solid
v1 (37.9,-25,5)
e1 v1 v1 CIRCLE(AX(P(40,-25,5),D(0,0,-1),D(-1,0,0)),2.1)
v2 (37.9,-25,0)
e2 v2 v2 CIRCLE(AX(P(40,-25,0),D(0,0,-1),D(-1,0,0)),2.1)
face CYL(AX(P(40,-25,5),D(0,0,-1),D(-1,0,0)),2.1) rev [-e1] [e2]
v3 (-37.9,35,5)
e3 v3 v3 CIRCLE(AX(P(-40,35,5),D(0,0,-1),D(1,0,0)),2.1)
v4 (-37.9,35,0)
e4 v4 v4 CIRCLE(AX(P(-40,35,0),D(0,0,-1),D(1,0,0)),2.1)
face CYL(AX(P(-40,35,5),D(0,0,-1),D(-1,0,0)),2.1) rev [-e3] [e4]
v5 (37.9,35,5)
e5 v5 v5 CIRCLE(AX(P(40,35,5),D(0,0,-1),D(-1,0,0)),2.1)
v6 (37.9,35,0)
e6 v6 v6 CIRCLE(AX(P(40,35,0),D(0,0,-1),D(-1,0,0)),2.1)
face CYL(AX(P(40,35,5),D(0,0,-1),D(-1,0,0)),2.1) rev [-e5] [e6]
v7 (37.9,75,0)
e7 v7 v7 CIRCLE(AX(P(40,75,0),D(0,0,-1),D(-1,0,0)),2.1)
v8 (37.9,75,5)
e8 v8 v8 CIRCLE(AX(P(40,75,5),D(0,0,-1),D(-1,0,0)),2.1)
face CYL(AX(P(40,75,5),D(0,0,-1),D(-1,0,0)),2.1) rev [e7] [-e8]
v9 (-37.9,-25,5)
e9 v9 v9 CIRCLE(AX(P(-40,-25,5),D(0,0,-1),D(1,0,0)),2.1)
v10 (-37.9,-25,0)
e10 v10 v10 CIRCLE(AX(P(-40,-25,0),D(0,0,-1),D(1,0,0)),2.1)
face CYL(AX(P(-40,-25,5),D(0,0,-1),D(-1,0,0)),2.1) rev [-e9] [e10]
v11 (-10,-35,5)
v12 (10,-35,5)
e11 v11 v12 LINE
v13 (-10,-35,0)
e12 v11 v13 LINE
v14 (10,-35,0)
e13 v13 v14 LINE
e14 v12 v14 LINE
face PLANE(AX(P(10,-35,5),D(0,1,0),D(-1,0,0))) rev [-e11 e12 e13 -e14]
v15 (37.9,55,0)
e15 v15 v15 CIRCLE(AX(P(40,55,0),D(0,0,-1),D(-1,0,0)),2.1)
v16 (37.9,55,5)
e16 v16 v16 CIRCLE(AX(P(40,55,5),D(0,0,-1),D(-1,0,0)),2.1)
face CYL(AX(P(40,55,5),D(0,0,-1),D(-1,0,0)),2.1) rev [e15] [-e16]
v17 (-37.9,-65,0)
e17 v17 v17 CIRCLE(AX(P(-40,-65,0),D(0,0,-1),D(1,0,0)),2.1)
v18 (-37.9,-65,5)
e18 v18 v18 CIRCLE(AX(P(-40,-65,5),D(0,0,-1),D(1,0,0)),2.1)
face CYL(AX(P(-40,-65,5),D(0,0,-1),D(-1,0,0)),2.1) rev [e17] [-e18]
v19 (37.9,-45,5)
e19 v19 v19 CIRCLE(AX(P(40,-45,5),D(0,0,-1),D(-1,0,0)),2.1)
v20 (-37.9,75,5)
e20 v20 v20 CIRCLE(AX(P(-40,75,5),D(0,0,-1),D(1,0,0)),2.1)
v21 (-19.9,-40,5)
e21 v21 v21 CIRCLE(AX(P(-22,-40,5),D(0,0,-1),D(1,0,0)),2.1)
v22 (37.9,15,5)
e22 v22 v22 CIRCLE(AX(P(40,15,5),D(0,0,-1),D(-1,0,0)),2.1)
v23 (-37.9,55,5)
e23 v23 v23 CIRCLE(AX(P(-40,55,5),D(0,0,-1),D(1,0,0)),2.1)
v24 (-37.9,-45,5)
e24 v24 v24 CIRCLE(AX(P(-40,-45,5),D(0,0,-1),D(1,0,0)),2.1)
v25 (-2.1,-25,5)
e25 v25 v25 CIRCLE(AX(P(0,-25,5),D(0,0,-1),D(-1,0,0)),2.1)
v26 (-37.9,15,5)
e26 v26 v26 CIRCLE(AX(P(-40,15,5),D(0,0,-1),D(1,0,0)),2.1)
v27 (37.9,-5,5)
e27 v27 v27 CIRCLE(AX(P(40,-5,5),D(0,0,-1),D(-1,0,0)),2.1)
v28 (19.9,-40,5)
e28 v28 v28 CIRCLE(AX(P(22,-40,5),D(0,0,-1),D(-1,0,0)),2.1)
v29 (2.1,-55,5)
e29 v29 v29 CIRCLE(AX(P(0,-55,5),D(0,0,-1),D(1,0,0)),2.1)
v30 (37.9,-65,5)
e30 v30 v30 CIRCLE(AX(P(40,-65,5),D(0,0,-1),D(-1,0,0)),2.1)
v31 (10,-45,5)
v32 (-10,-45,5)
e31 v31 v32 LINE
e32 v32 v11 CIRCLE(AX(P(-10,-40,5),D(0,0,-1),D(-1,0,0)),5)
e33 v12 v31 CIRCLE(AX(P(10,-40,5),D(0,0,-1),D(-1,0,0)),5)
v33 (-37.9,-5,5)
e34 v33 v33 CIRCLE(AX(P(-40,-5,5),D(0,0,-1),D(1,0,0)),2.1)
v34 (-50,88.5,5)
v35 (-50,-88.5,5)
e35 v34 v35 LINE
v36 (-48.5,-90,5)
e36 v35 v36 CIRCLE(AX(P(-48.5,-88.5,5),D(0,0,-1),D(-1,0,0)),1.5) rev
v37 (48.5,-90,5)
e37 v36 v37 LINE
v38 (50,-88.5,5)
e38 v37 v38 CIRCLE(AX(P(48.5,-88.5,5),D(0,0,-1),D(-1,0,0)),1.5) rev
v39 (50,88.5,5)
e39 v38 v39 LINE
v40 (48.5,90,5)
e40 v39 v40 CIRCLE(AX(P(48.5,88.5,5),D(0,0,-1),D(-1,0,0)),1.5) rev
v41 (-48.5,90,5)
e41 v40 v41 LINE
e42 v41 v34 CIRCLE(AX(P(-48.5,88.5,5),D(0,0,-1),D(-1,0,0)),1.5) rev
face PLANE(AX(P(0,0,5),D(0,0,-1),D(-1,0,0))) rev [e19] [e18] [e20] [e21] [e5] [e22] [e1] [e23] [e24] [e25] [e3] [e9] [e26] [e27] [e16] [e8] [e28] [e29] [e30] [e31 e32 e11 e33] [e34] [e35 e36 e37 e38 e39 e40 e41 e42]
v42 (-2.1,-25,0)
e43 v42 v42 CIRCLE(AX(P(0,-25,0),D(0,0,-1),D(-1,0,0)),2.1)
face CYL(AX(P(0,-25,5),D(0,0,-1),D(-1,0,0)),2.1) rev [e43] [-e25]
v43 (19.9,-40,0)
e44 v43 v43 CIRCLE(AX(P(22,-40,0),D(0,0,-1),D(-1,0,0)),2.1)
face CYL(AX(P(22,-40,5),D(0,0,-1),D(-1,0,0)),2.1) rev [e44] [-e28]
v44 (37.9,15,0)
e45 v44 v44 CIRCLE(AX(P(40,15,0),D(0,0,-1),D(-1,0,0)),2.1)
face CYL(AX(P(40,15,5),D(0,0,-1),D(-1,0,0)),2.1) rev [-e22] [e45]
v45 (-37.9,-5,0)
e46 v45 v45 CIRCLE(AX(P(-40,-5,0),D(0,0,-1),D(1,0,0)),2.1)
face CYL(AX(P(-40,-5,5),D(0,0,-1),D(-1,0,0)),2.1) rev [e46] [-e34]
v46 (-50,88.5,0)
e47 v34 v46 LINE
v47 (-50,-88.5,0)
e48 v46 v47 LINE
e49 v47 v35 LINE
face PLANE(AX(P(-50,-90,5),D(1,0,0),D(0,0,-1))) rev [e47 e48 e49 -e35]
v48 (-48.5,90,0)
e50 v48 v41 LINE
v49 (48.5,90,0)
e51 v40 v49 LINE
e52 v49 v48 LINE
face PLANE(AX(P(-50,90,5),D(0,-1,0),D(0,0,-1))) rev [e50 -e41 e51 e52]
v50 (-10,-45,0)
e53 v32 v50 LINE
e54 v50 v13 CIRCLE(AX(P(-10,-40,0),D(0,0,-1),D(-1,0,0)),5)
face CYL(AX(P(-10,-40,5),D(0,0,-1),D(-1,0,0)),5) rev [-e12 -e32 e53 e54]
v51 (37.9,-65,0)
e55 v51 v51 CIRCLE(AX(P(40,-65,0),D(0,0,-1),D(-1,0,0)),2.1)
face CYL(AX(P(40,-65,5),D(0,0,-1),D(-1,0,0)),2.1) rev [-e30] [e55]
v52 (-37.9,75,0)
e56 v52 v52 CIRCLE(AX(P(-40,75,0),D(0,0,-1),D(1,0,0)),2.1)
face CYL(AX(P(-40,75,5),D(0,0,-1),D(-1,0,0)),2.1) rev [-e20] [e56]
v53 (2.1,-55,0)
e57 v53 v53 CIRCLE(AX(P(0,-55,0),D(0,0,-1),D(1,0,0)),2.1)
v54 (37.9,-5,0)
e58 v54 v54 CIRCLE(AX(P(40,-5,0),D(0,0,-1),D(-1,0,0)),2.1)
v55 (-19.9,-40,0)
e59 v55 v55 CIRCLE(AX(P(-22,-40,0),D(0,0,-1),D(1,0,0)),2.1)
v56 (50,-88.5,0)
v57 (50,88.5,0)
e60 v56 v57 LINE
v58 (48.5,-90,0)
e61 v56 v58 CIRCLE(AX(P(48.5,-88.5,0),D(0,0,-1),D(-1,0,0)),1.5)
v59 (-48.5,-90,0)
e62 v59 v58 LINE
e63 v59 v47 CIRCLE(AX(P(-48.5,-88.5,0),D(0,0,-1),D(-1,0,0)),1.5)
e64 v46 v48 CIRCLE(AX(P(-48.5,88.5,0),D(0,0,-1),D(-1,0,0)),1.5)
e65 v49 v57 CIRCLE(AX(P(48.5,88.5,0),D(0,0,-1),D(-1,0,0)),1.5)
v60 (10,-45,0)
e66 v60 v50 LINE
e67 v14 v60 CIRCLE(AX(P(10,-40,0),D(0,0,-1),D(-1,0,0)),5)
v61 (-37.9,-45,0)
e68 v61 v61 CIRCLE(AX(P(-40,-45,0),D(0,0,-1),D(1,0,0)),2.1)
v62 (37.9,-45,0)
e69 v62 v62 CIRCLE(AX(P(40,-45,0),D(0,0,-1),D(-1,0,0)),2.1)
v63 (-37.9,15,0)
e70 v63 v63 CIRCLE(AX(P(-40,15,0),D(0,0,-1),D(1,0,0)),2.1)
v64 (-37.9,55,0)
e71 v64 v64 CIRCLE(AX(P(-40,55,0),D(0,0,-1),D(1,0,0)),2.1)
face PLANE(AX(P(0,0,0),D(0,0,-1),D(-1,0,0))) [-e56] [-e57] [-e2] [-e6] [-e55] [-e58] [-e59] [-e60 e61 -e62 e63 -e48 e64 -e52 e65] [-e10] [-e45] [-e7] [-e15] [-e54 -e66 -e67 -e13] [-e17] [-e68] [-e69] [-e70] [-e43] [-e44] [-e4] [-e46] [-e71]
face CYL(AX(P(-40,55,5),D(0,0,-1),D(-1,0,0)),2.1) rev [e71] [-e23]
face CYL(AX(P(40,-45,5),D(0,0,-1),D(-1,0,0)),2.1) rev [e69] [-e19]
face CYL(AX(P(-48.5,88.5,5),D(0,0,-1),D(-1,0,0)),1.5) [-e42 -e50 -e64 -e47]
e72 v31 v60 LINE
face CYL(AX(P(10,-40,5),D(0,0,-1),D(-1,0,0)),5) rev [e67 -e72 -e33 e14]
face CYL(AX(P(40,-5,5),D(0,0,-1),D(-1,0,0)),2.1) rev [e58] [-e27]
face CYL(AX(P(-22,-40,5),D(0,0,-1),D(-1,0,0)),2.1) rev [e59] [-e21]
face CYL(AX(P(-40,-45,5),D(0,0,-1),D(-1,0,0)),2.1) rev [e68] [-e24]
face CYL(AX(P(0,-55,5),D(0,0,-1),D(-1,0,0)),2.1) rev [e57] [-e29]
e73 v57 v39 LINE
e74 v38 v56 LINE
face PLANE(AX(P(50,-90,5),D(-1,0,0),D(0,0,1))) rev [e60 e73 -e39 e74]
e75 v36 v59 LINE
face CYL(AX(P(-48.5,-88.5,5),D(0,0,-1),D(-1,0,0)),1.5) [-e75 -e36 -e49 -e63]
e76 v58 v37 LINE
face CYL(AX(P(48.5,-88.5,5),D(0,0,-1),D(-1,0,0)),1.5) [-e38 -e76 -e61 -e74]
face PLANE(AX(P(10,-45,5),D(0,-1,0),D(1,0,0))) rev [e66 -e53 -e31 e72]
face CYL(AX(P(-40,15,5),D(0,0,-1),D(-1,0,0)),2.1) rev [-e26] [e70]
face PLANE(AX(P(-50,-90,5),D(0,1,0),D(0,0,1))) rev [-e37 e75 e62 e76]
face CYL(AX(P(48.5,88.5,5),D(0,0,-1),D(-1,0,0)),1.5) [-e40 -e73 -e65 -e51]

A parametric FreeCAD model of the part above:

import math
import FreeCAD as App
import Part
import Sketcher
from FreeCAD import Vector


def edges_at(feature, points):
    """Names of the edges that pass closest to the given points."""
    edges = feature.Shape.Edges
    near = lambda p: min(range(len(edges)), key=lambda i: edges[i].distToShape(Part.Vertex(*p))[0])
    return sorted({f"Edge{near(p) + 1}" for p in points})


def add_polygon(sketch, points):
    """Adds a closed chain of lines whose ends are joined by coincident constraints."""
    first, n = sketch.GeometryCount, len(points)
    for a, b in zip(points, points[1:] + points[:1]):
        sketch.addGeometry(Part.LineSegment(App.Vector(*a, 0), App.Vector(*b, 0)), False)
    for i in range(n):
        sketch.addConstraint(Sketcher.Constraint("Coincident", first + i, 2, first + (i + 1) % n, 1))

doc = App.newDocument("Part")
body = doc.addObject("PartDesign::Body", "Body")

# Sketch on XY plane
sketch1 = body.newObject("Sketcher::SketchObject", "Sketch")
sketch1.AttachmentSupport = (doc.getObject("XY_Plane"), [""])
sketch1.MapMode = "FlatFace"
add_polygon(sketch1, [(-50, 90), (-50, -90), (50, -90), (50, 90)])  # lines 0-3
sketch1.addConstraint([
    Sketcher.Constraint("Vertical", 0),
    Sketcher.Constraint("Horizontal", 1),
    Sketcher.Constraint("Vertical", 2),
    Sketcher.Constraint("Horizontal", 3),
    Sketcher.Constraint("Symmetric", 0, 2, 2, 2, -1, 1),
    Sketcher.Constraint("DistanceX", 1, 1, 1, 2, 100.0),
    Sketcher.Constraint("DistanceY", 0, 2, 0, 1, 180.0),
])
pad1 = body.newObject("PartDesign::Pad", "Pad")
pad1.Profile = sketch1
pad1.Length = 5

# Sketch on XY plane
sketch2 = body.newObject("Sketcher::SketchObject", "Sketch001")
sketch2.AttachmentSupport = (doc.getObject("XY_Plane"), [""])
sketch2.MapMode = "FlatFace"
sketch2.addGeometry([
    Part.Circle(Vector(22, -40, 0), Vector(0, 0, 1), 2.1),  # 0
    Part.Circle(Vector(0, -25, 0), Vector(0, 0, 1), 2.1),  # 1
    Part.Circle(Vector(-22, -40, 0), Vector(0, 0, 1), 2.1),  # 2
    Part.Circle(Vector(0, -55, 0), Vector(0, 0, 1), 2.1),  # 3
    Part.LineSegment(Vector(-10, -35, 0), Vector(10, -35, 0)),  # 4
    Part.ArcOfCircle(Part.Circle(Vector(10, -40, 0), Vector(0, 0, 1), 5), math.radians(-90), math.radians(90)),  # 5
    Part.LineSegment(Vector(10, -45, 0), Vector(-10, -45, 0)),  # 6
    Part.ArcOfCircle(Part.Circle(Vector(-10, -40, 0), Vector(0, 0, 1), 5), math.radians(90), math.radians(270)),  # 7
], False)
sketch2.addConstraint([
    Sketcher.Constraint("Tangent", 4, 2, 5, 2),
    Sketcher.Constraint("Tangent", 5, 1, 6, 1),
    Sketcher.Constraint("Tangent", 6, 2, 7, 2),
    Sketcher.Constraint("Tangent", 7, 1, 4, 1),
    Sketcher.Constraint("Horizontal", 4),
    Sketcher.Constraint("Horizontal", 6),
    Sketcher.Constraint("Equal", 0, 1),
    Sketcher.Constraint("Equal", 1, 2),
    Sketcher.Constraint("Equal", 2, 3),
    Sketcher.Constraint("Symmetric", 0, 3, 2, 3, -2),
    Sketcher.Constraint("PointOnObject", 1, 3, -2),
    Sketcher.Constraint("PointOnObject", 3, 3, -2),
    Sketcher.Constraint("Horizontal", 2, 3, 5, 3),
    Sketcher.Constraint("Radius", 5, 5.0),
    Sketcher.Constraint("Diameter", 0, 4.2),
    Sketcher.Constraint("DistanceX", 4, 1, 4, 2, 20.0),
    Sketcher.Constraint("DistanceX", -1, 1, 0, 3, 22.0),
    Sketcher.Constraint("DistanceY", 0, 3, -1, 1, 40.0),
    Sketcher.Constraint("DistanceY", 1, 3, -1, 1, 25.0),
    Sketcher.Constraint("DistanceY", 3, 3, -1, 1, 55.0),
    Sketcher.Constraint("DistanceX", -1, 1, 5, 3, 10.0),
])
pocket1 = body.newObject("PartDesign::Pocket", "Pocket")
pocket1.Profile = sketch2
pocket1.Type = "ThroughAll"
pocket1.Reversed = True
doc.recompute()

fillet = body.newObject("PartDesign::Fillet", "Fillet")
fillet.Base = (pocket1, edges_at(pocket1, [
    (50, -90, 2.5),
    (-50, -90, 2.5),
    (-50, 90, 2.5),
    (50, 90, 2.5),
]))
fillet.Radius = 1.5

# Sketch on XY plane
sketch3 = body.newObject("Sketcher::SketchObject", "Sketch002")
sketch3.AttachmentSupport = (doc.getObject("XY_Plane"), [""])
sketch3.MapMode = "FlatFace"
sketch3.addGeometry([
    Part.Circle(Vector(40, 75, 0), Vector(0, 0, 1), 2.1),  # 0
    Part.Circle(Vector(40, 55, 0), Vector(0, 0, 1), 2.1),  # 1
    Part.Circle(Vector(40, 35, 0), Vector(0, 0, 1), 2.1),  # 2
    Part.Circle(Vector(40, 15, 0), Vector(0, 0, 1), 2.1),  # 3
    Part.Circle(Vector(40, -5, 0), Vector(0, 0, 1), 2.1),  # 4
    Part.Circle(Vector(-40, -5, 0), Vector(0, 0, 1), 2.1),  # 5
    Part.Circle(Vector(-40, 15, 0), Vector(0, 0, 1), 2.1),  # 6
    Part.Circle(Vector(-40, 35, 0), Vector(0, 0, 1), 2.1),  # 7
    Part.Circle(Vector(-40, 75, 0), Vector(0, 0, 1), 2.1),  # 8
    Part.Circle(Vector(-40, 55, 0), Vector(0, 0, 1), 2.1),  # 9
    Part.Circle(Vector(40, -25, 0), Vector(0, 0, 1), 2.1),  # 10
    Part.Circle(Vector(40, -45, 0), Vector(0, 0, 1), 2.1),  # 11
    Part.Circle(Vector(40, -65, 0), Vector(0, 0, 1), 2.1),  # 12
    Part.Circle(Vector(-40, -65, 0), Vector(0, 0, 1), 2.1),  # 13
    Part.Circle(Vector(-40, -45, 0), Vector(0, 0, 1), 2.1),  # 14
    Part.Circle(Vector(-40, -25, 0), Vector(0, 0, 1), 2.1),  # 15
], False)
sketch3.addConstraint([
    Sketcher.Constraint("Equal", 0, 1),
    Sketcher.Constraint("Equal", 1, 2),
    Sketcher.Constraint("Equal", 2, 3),
    Sketcher.Constraint("Equal", 3, 4),
    Sketcher.Constraint("Equal", 4, 5),
    Sketcher.Constraint("Equal", 5, 6),
    Sketcher.Constraint("Equal", 6, 7),
    Sketcher.Constraint("Equal", 7, 8),
    Sketcher.Constraint("Equal", 8, 9),
    Sketcher.Constraint("Equal", 9, 10),
    Sketcher.Constraint("Equal", 10, 11),
    Sketcher.Constraint("Equal", 11, 12),
    Sketcher.Constraint("Equal", 12, 13),
    Sketcher.Constraint("Equal", 13, 14),
    Sketcher.Constraint("Equal", 14, 15),
    Sketcher.Constraint("Symmetric", 4, 3, 5, 3, -2),
    Sketcher.Constraint("Symmetric", 3, 3, 6, 3, -2),
    Sketcher.Constraint("Symmetric", 2, 3, 7, 3, -2),
    Sketcher.Constraint("Symmetric", 0, 3, 8, 3, -2),
    Sketcher.Constraint("Symmetric", 1, 3, 9, 3, -2),
    Sketcher.Constraint("Symmetric", 12, 3, 13, 3, -2),
    Sketcher.Constraint("Symmetric", 11, 3, 14, 3, -2),
    Sketcher.Constraint("Symmetric", 10, 3, 15, 3, -2),
    Sketcher.Constraint("Vertical", 0, 3, 1, 3),
    Sketcher.Constraint("Vertical", 1, 3, 2, 3),
    Sketcher.Constraint("Vertical", 2, 3, 3, 3),
    Sketcher.Constraint("Vertical", 3, 3, 4, 3),
    Sketcher.Constraint("Vertical", 4, 3, 10, 3),
    Sketcher.Constraint("Vertical", 10, 3, 11, 3),
    Sketcher.Constraint("Vertical", 11, 3, 12, 3),
    Sketcher.Constraint("Diameter", 0, 4.2),
    Sketcher.Constraint("DistanceX", -1, 1, 0, 3, 40.0),
    Sketcher.Constraint("DistanceY", -1, 1, 0, 3, 75.0),
    Sketcher.Constraint("DistanceY", -1, 1, 1, 3, 55.0),
    Sketcher.Constraint("DistanceY", -1, 1, 2, 3, 35.0),
    Sketcher.Constraint("DistanceY", -1, 1, 3, 3, 15.0),
    Sketcher.Constraint("DistanceY", 4, 3, -1, 1, 5.0),
    Sketcher.Constraint("DistanceY", 10, 3, -1, 1, 25.0),
    Sketcher.Constraint("DistanceY", 11, 3, -1, 1, 45.0),
    Sketcher.Constraint("DistanceY", 12, 3, -1, 1, 65.0),
])
pocket2 = body.newObject("PartDesign::Pocket", "Pocket001")
pocket2.Profile = sketch3
pocket2.Type = "ThroughAll"
pocket2.Reversed = True

doc.recompute()
